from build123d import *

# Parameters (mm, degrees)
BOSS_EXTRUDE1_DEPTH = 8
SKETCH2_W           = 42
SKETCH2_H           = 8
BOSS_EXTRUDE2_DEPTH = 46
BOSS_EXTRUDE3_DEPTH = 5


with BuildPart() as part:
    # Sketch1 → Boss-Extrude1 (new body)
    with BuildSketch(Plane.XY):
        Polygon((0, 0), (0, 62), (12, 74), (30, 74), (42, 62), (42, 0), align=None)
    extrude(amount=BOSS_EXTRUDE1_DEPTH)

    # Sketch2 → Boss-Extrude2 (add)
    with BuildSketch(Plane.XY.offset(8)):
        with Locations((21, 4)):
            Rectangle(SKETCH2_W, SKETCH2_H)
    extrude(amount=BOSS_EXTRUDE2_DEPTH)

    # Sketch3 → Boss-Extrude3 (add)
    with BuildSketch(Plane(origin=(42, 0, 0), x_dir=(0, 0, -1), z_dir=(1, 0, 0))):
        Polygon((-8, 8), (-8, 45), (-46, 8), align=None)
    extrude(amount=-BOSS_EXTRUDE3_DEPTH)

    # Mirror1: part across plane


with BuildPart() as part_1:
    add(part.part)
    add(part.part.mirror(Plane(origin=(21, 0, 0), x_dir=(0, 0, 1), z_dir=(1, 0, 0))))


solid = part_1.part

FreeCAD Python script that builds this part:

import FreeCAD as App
import Part
import Sketcher
from FreeCAD import Vector
Q = App.Units.Quantity


def add_polygon(sketch, points):
    """Adds a closed chain of lines whose ends are joined by coincident constraints."""
    first, n = sketch.GeometryCount, len(points)
    for a, b in zip(points, points[1:] + points[:1]):
        sketch.addGeometry(Part.LineSegment(App.Vector(*a, 0), App.Vector(*b, 0)), False)
    for i in range(n):
        sketch.addConstraint(Sketcher.Constraint("Coincident", first + i, 2, first + (i + 1) % n, 1))

doc = App.newDocument("Part")
params = doc.addObject("Spreadsheet::Sheet", "Params")
for row, (alias, value) in enumerate([
    ("sketch1_width", "42 mm"),
    ("sketch1_width2", "18 mm"),
    ("sketch1_height", "62 mm"),
    ("pad1_length", "8 mm"),
    ("sketch2_width", "42 mm"),
    ("sketch2_height", "8 mm"),
    ("pad2_length", "46 mm"),
    ("sketch3_width", "37 mm"),
    ("sketch3_height", "38 mm"),
    ("pad3_length", "5 mm"),
], start=1):
    params.set(f"A{row}", alias)
    params.set(f"B{row}", "=" + value)
    params.setAlias(f"B{row}", alias)

body = doc.addObject("PartDesign::Body", "Body")

sketch1 = body.newObject("Sketcher::SketchObject", "Sketch")
sketch1.AttachmentSupport = (doc.getObject("XY_Plane"), [""])
sketch1.MapMode = "FlatFace"
add_polygon(sketch1, [(0, 62), (0, 0), (42, 0), (42, 62), (30, 74), (12, 74)])
sketch1.addConstraint(Sketcher.Constraint("Vertical", 0))
sketch1.addConstraint(Sketcher.Constraint("Horizontal", 1))
sketch1.addConstraint(Sketcher.Constraint("Vertical", 2))
sketch1.addConstraint(Sketcher.Constraint("Horizontal", 4))
sketch1.addConstraint(Sketcher.Constraint("Coincident", 0, 2, -1, 1))
sketch1.addConstraint(Sketcher.Constraint("Perpendicular", 3, 5))
sketch1.addConstraint(Sketcher.Constraint("Horizontal", 2, 2, 5, 2))
sketch1.addConstraint(Sketcher.Constraint("Equal", 3, 5))
sketch1.addConstraint(Sketcher.Constraint("DistanceX", 1, 1, 1, 2, Q("42 mm")))
sketch1.addConstraint(Sketcher.Constraint("DistanceX", 4, 2, 4, 1, Q("18 mm")))
sketch1.addConstraint(Sketcher.Constraint("DistanceY", 0, 2, 0, 1, Q("62 mm")))
sketch1.setExpression("Constraints[14]", "Params.sketch1_width")
sketch1.setExpression("Constraints[15]", "Params.sketch1_width2")
sketch1.setExpression("Constraints[16]", "Params.sketch1_height")
pad1 = body.newObject("PartDesign::Pad", "Pad")
pad1.Profile = sketch1
pad1.setExpression("Length", "Params.pad1_length")

sketch2 = body.newObject("Sketcher::SketchObject", "Sketch001")
sketch2.AttachmentSupport = (doc.getObject("XY_Plane"), [""])
sketch2.MapMode = "FlatFace"
sketch2.AttachmentOffset = App.Placement(Vector(0, 0, 8), App.Rotation())
add_polygon(sketch2, [(0, 8), (0, 0), (42, 0), (42, 8)])
sketch2.addConstraint(Sketcher.Constraint("Vertical", 0))
sketch2.addConstraint(Sketcher.Constraint("Horizontal", 1))
sketch2.addConstraint(Sketcher.Constraint("Vertical", 2))
sketch2.addConstraint(Sketcher.Constraint("Horizontal", 3))
sketch2.addConstraint(Sketcher.Constraint("Coincident", 0, 2, -1, 1))
sketch2.addConstraint(Sketcher.Constraint("DistanceX", 1, 1, 1, 2, Q("42 mm")))
sketch2.addConstraint(Sketcher.Constraint("DistanceY", 0, 2, 0, 1, Q("8 mm")))
sketch2.setExpression("Constraints[9]", "Params.sketch2_width")
sketch2.setExpression("Constraints[10]", "Params.sketch2_height")
pad2 = body.newObject("PartDesign::Pad", "Pad001")
pad2.Profile = sketch2
pad2.setExpression("Length", "Params.pad2_length")

sketch3 = body.newObject("Sketcher::SketchObject", "Sketch002")
sketch3.AttachmentSupport = (doc.getObject("YZ_Plane"), [""])
sketch3.MapMode = "FlatFace"
sketch3.AttachmentOffset = App.Placement(Vector(0, 0, 42), App.Rotation())
add_polygon(sketch3, [(8, 8), (45, 8), (8, 46)])
sketch3.addConstraint(Sketcher.Constraint("Horizontal", 0))
sketch3.addConstraint(Sketcher.Constraint("Vertical", 2))
sketch3.addConstraint(Sketcher.Constraint("DistanceX", 0, 1, 0, 2, Q("37 mm")))
sketch3.addConstraint(Sketcher.Constraint("DistanceY", 2, 2, 2, 1, Q("38 mm")))
sketch3.addConstraint(Sketcher.Constraint("DistanceX", -1, 1, 0, 2, Q("45 mm")))
sketch3.addConstraint(Sketcher.Constraint("DistanceY", -1, 1, 0, 2, Q("8 mm")))
sketch3.setExpression("Constraints[5]", "Params.sketch3_width")
sketch3.setExpression("Constraints[6]", "Params.sketch3_height")
pad3 = body.newObject("PartDesign::Pad", "Pad002")
pad3.Profile = sketch3
pad3.setExpression("Length", "Params.pad3_length")
pad3.Reversed = True
body2 = doc.addObject("PartDesign::Body", "Body001")
doc.recompute()

body2.BaseFeature = body
doc.recompute()

mirroring = doc.addObject("Part::Mirroring", "Mirroring")
mirroring.Source = body
mirroring.Base = Vector(21, 0, 0)
mirroring.Normal = Vector(1, 0, 0)
body3 = doc.addObject("PartDesign::Body", "Body002")
body3.BaseFeature = mirroring
boolean = body2.newObject("PartDesign::Boolean", "Boolean")
boolean.Type = "Fuse"
boolean.addObjects([body3])
doc.recompute()
mirroring.Visibility = False

doc.recompute()
